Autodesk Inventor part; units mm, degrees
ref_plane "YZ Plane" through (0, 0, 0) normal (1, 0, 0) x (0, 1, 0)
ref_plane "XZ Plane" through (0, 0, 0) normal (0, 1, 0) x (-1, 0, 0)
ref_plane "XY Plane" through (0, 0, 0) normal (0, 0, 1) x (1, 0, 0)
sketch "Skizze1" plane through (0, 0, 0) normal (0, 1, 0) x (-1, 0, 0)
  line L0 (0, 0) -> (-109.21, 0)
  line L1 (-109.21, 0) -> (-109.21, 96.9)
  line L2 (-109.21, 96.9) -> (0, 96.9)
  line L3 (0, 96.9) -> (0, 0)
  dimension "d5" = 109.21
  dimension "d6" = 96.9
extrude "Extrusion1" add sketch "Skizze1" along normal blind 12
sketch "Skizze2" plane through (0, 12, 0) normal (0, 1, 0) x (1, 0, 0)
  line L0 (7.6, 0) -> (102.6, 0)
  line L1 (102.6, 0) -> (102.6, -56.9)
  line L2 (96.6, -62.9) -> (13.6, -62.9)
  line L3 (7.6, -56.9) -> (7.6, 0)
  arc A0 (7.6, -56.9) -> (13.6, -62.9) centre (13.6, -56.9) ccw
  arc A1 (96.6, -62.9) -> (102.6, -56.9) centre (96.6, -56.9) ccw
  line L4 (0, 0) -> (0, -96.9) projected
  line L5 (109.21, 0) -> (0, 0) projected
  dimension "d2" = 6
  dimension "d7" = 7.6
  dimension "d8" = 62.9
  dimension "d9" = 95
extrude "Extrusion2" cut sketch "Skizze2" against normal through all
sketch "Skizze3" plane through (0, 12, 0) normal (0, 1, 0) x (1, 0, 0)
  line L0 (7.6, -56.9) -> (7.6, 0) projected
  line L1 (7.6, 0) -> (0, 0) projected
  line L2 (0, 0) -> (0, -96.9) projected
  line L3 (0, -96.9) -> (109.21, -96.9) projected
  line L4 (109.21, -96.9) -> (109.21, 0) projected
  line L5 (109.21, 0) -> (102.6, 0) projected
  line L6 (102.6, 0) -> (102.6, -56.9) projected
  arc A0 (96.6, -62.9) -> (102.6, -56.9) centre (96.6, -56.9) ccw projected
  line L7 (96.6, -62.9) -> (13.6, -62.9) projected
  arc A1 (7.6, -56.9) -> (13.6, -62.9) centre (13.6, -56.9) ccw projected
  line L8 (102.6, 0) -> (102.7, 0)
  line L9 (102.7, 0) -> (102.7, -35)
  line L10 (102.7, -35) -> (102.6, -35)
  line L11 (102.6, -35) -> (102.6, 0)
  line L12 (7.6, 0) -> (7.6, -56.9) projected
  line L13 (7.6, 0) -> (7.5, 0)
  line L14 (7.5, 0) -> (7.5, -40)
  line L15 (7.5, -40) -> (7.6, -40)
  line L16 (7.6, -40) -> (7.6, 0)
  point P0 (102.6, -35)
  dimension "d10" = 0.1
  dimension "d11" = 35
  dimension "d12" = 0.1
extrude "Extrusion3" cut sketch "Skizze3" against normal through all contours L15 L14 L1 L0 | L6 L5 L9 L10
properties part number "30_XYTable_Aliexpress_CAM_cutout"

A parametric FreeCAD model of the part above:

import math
import FreeCAD as App
import Part
import Sketcher
from FreeCAD import Vector

doc = App.newDocument("Part")
body = doc.addObject("PartDesign::Body", "Body")

# Sketch on XZ plane
sketch1 = body.newObject("Sketcher::SketchObject", "Sketch")
sketch1.AttachmentSupport = (doc.getObject("XZ_Plane"), [""])
sketch1.MapMode = "FlatFace"
sketch1.addGeometry(Part.LineSegment(Vector(109, 0, 0), Vector(0, 0, 0)), False)
sketch1.addGeometry(Part.LineSegment(Vector(0, 0, 0), Vector(0, 97, 0)), False)
sketch1.addGeometry(Part.LineSegment(Vector(0, 97, 0), Vector(109, 97, 0)), False)
sketch1.addGeometry(Part.LineSegment(Vector(109, 97, 0), Vector(109, 0, 0)), False)
sketch1.addConstraint(Sketcher.Constraint("Coincident", 0, 2, 1, 1))
sketch1.addConstraint(Sketcher.Constraint("Coincident", 1, 2, 2, 1))
sketch1.addConstraint(Sketcher.Constraint("Coincident", 2, 2, 3, 1))
sketch1.addConstraint(Sketcher.Constraint("Coincident", 3, 2, 0, 1))
sketch1.addConstraint(Sketcher.Constraint("Horizontal", 0))
sketch1.addConstraint(Sketcher.Constraint("Vertical", 1))
sketch1.addConstraint(Sketcher.Constraint("Horizontal", 2))
sketch1.addConstraint(Sketcher.Constraint("Vertical", 3))
sketch1.addConstraint(Sketcher.Constraint("Coincident", 0, 2, -1, 1))
sketch1.addConstraint(Sketcher.Constraint("DistanceY", 1, 1, 1, 2, 96.9))
sketch1.addConstraint(Sketcher.Constraint("DistanceX", 0, 2, 0, 1, 109.21))
pad1 = body.newObject("PartDesign::Pad", "Pad")
pad1.Profile = sketch1
pad1.Length = 12
pad1.Reversed = True

# Sketch on XZ plane
sketch2 = body.newObject("Sketcher::SketchObject", "Sketch001")
sketch2.AttachmentSupport = (doc.getObject("XZ_Plane"), [""])
sketch2.MapMode = "FlatFace"
sketch2.AttachmentOffset = App.Placement(Vector(0, 0, -12), App.Rotation())
sketch2.addGeometry(Part.LineSegment(Vector(103, 0, 0), Vector(8, 0, 0)), False)
sketch2.addGeometry(Part.LineSegment(Vector(8, 0, 0), Vector(8, 57, 0)), False)
sketch2.addGeometry(Part.ArcOfCircle(Part.Circle(Vector(14, 57, 0), Vector(0, 0, 1), 6), math.radians(90), math.radians(180)), False)
sketch2.addGeometry(Part.LineSegment(Vector(14, 63, 0), Vector(97, 63, 0)), False)
sketch2.addGeometry(Part.ArcOfCircle(Part.Circle(Vector(97, 57, 0), Vector(0, 0, 1), 6), math.radians(0), math.radians(90)), False)
sketch2.addGeometry(Part.LineSegment(Vector(103, 57, 0), Vector(103, 0, 0)), False)
sketch2.addConstraint(Sketcher.Constraint("Coincident", 0, 2, 1, 1))
sketch2.addConstraint(Sketcher.Constraint("Tangent", 1, 2, 2, 2))
sketch2.addConstraint(Sketcher.Constraint("Tangent", 2, 1, 3, 1))
sketch2.addConstraint(Sketcher.Constraint("Tangent", 3, 2, 4, 2))
sketch2.addConstraint(Sketcher.Constraint("Tangent", 4, 1, 5, 1))
sketch2.addConstraint(Sketcher.Constraint("Coincident", 5, 2, 0, 1))
sketch2.addConstraint(Sketcher.Constraint("Horizontal", 0))
sketch2.addConstraint(Sketcher.Constraint("Vertical", 1))
sketch2.addConstraint(Sketcher.Constraint("Horizontal", 3))
sketch2.addConstraint(Sketcher.Constraint("Vertical", 5))
sketch2.addConstraint(Sketcher.Constraint("Equal", 2, 4))
sketch2.addConstraint(Sketcher.Constraint("PointOnObject", 0, 2, -1))
sketch2.addConstraint(Sketcher.Constraint("Radius", 2, 6.0))
sketch2.addConstraint(Sketcher.Constraint("DistanceX", 0, 2, 0, 1, 95.0))
sketch2.addConstraint(Sketcher.Constraint("DistanceX", -1, 1, 0, 2, 7.6))
sketch2.addConstraint(Sketcher.Constraint("DistanceY", -1, 1, 2, 1, 62.9))
pocket1 = body.newObject("PartDesign::Pocket", "Pocket")
pocket1.Profile = sketch2
pocket1.Type = "ThroughAll"
pocket1.Reversed = True

# Sketch on XZ plane
sketch3 = body.newObject("Sketcher::SketchObject", "Sketch002")
sketch3.AttachmentSupport = (doc.getObject("XZ_Plane"), [""])
sketch3.MapMode = "FlatFace"
sketch3.AttachmentOffset = App.Placement(Vector(0, 0, -12), App.Rotation())
sketch3.addGeometry(Part.LineSegment(Vector(7.5, 40, 0), Vector(7.6, 40, 0)), False)
sketch3.addGeometry(Part.LineSegment(Vector(7.6, 40, 0), Vector(7.6, 0, 0)), False)
sketch3.addGeometry(Part.LineSegment(Vector(7.6, 0, 0), Vector(7.5, 0, 0)), False)
sketch3.addGeometry(Part.LineSegment(Vector(7.5, 0, 0), Vector(7.5, 40, 0)), False)
sketch3.addGeometry(Part.LineSegment(Vector(102.6, 0, 0), Vector(102.6, 35, 0)), False)
sketch3.addGeometry(Part.LineSegment(Vector(102.6, 35, 0), Vector(102.7, 35, 0)), False)
sketch3.addGeometry(Part.LineSegment(Vector(102.7, 35, 0), Vector(102.7, 0, 0)), False)
sketch3.addGeometry(Part.LineSegment(Vector(102.7, 0, 0), Vector(102.6, 0, 0)), False)
sketch3.addConstraint(Sketcher.Constraint("Coincident", 0, 2, 1, 1))
sketch3.addConstraint(Sketcher.Constraint("Coincident", 1, 2, 2, 1))
sketch3.addConstraint(Sketcher.Constraint("Coincident", 2, 2, 3, 1))
sketch3.addConstraint(Sketcher.Constraint("Coincident", 3, 2, 0, 1))
sketch3.addConstraint(Sketcher.Constraint("Coincident", 4, 2, 5, 1))
sketch3.addConstraint(Sketcher.Constraint("Coincident", 5, 2, 6, 1))
sketch3.addConstraint(Sketcher.Constraint("Coincident", 6, 2, 7, 1))
sketch3.addConstraint(Sketcher.Constraint("Coincident", 7, 2, 4, 1))
sketch3.addConstraint(Sketcher.Constraint("Horizontal", 0))
sketch3.addConstraint(Sketcher.Constraint("Vertical", 1))
sketch3.addConstraint(Sketcher.Constraint("Horizontal", 2))
sketch3.addConstraint(Sketcher.Constraint("Vertical", 3))
sketch3.addConstraint(Sketcher.Constraint("Vertical", 4))
sketch3.addConstraint(Sketcher.Constraint("Horizontal", 5))
sketch3.addConstraint(Sketcher.Constraint("Vertical", 6))
sketch3.addConstraint(Sketcher.Constraint("Horizontal", 7))
sketch3.addConstraint(Sketcher.Constraint("PointOnObject", 1, 2, -1))
sketch3.addConstraint(Sketcher.Constraint("PointOnObject", 6, 2, -1))
sketch3.addConstraint(Sketcher.Constraint("Equal", 2, 5))
sketch3.addConstraint(Sketcher.Constraint("DistanceY", 4, 1, 4, 2, 35.0))
sketch3.addConstraint(Sketcher.Constraint("DistanceX", 0, 1, 0, 2, 0.1))
sketch3.addConstraint(Sketcher.Constraint("DistanceY", 1, 2, 1, 1, 40.0))
sketch3.addConstraint(Sketcher.Constraint("DistanceX", 0, 2, 4, 2, 95.0))
sketch3.addConstraint(Sketcher.Constraint("DistanceX", -1, 1, 0, 2, 7.6))
pocket2 = body.newObject("PartDesign::Pocket", "Pocket001")
pocket2.Profile = sketch3
pocket2.Type = "ThroughAll"
pocket2.Reversed = True

doc.recompute()
